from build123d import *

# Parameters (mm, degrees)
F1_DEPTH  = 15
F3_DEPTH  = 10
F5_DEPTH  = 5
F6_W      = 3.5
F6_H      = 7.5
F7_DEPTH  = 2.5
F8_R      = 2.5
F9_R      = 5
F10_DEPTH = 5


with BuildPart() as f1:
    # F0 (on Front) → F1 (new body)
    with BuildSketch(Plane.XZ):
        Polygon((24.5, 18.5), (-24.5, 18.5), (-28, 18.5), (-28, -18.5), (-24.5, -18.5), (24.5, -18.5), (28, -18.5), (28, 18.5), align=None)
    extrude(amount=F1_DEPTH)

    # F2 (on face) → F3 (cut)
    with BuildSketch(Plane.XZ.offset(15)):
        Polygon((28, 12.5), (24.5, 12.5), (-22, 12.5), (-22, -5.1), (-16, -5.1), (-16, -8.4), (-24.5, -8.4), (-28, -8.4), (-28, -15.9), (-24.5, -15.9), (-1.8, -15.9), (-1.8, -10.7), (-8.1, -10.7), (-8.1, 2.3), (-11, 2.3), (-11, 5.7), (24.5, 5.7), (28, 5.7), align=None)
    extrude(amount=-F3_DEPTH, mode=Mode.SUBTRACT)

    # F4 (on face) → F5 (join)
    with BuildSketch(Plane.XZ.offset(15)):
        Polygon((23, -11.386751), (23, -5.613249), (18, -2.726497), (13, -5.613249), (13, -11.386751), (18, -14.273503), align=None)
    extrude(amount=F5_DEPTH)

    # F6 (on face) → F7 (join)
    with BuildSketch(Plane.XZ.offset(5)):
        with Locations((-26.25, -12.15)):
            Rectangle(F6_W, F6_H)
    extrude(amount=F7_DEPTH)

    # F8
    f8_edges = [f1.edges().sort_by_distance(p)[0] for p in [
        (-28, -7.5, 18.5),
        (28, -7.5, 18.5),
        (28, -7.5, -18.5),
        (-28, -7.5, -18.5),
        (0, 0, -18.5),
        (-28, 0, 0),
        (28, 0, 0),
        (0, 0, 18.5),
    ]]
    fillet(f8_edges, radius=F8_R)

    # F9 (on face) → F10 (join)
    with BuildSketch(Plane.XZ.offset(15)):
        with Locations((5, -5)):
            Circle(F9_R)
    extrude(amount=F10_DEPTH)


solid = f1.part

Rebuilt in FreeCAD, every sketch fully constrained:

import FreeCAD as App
import Part
import Sketcher
from FreeCAD import Vector
Q = App.Units.Quantity


def edges_at(feature, points):
    """Names of the edges that pass closest to the given points."""
    edges = feature.Shape.Edges
    near = lambda p: min(range(len(edges)), key=lambda i: edges[i].distToShape(Part.Vertex(*p))[0])
    return sorted({f"Edge{near(p) + 1}" for p in points})

doc = App.newDocument("Part")
body = doc.addObject("PartDesign::Body", "Body")

# Sketch on XZ plane
sketch1 = body.newObject("Sketcher::SketchObject", "Sketch")
sketch1.AttachmentSupport = (doc.getObject("XZ_Plane"), [""])
sketch1.MapMode = "FlatFace"
sketch1.addGeometry([
    Part.LineSegment(Vector(-28, 18, 0), Vector(-28, -18, 0)),
    Part.LineSegment(Vector(-28, -18, 0), Vector(28, -18, 0)),
    Part.LineSegment(Vector(28, -18, 0), Vector(28, 18, 0)),
    Part.LineSegment(Vector(28, 18, 0), Vector(-28, 18, 0)),
], False)
sketch1.addConstraint([
    Sketcher.Constraint("Coincident", 0, 2, 1, 1),
    Sketcher.Constraint("Coincident", 1, 2, 2, 1),
    Sketcher.Constraint("Coincident", 2, 2, 3, 1),
    Sketcher.Constraint("Coincident", 3, 2, 0, 1),
    Sketcher.Constraint("Vertical", 0),
    Sketcher.Constraint("Horizontal", 1),
    Sketcher.Constraint("Vertical", 2),
    Sketcher.Constraint("Horizontal", 3),
    Sketcher.Constraint("Symmetric", 0, 2, 2, 2, -1, 1),
    Sketcher.Constraint("DistanceX", 1, 1, 1, 2, 56.0),
    Sketcher.Constraint("DistanceY", 0, 2, 0, 1, 37.0),
])
pad1 = body.newObject("PartDesign::Pad", "Pad")
pad1.Profile = sketch1
pad1.Length = 15

# Sketch on XZ plane
sketch2 = body.newObject("Sketcher::SketchObject", "Sketch001")
sketch2.AttachmentSupport = (doc.getObject("XZ_Plane"), [""])
sketch2.MapMode = "FlatFace"
sketch2.AttachmentOffset = App.Placement(Vector(0, 0, 15), App.Rotation())
sketch2.addGeometry([
    Part.LineSegment(Vector(28, 12.5, 0), Vector(-22, 12.5, 0)),  # 0
    Part.LineSegment(Vector(-22, 12.5, 0), Vector(-22, -5.1, 0)),  # 1
    Part.LineSegment(Vector(-22, -5.1, 0), Vector(-16, -5.1, 0)),  # 2
    Part.LineSegment(Vector(-16, -5.1, 0), Vector(-16, -8.4, 0)),  # 3
    Part.LineSegment(Vector(-16, -8.4, 0), Vector(-28, -8.4, 0)),  # 4
    Part.LineSegment(Vector(-28, -8.4, 0), Vector(-28, -15.9, 0)),  # 5
    Part.LineSegment(Vector(-28, -15.9, 0), Vector(-1.8, -15.9, 0)),  # 6
    Part.LineSegment(Vector(-1.8, -15.9, 0), Vector(-1.8, -10.7, 0)),  # 7
    Part.LineSegment(Vector(-1.8, -10.7, 0), Vector(-8.1, -10.7, 0)),  # 8
    Part.LineSegment(Vector(-8.1, -10.7, 0), Vector(-8.1, 2.3, 0)),  # 9
    Part.LineSegment(Vector(-8.1, 2.3, 0), Vector(-11, 2.3, 0)),  # 10
    Part.LineSegment(Vector(-11, 2.3, 0), Vector(-11, 5.7, 0)),  # 11
    Part.LineSegment(Vector(-11, 5.7, 0), Vector(28, 5.7, 0)),  # 12
    Part.LineSegment(Vector(28, 5.7, 0), Vector(28, 12.5, 0)),  # 13
], False)
sketch2.addConstraint([
    Sketcher.Constraint("Coincident", 0, 2, 1, 1),
    Sketcher.Constraint("Coincident", 1, 2, 2, 1),
    Sketcher.Constraint("Coincident", 2, 2, 3, 1),
    Sketcher.Constraint("Coincident", 3, 2, 4, 1),
    Sketcher.Constraint("Coincident", 4, 2, 5, 1),
    Sketcher.Constraint("Coincident", 5, 2, 6, 1),
    Sketcher.Constraint("Coincident", 6, 2, 7, 1),
    Sketcher.Constraint("Coincident", 7, 2, 8, 1),
    Sketcher.Constraint("Coincident", 8, 2, 9, 1),
    Sketcher.Constraint("Coincident", 9, 2, 10, 1),
    Sketcher.Constraint("Coincident", 10, 2, 11, 1),
    Sketcher.Constraint("Coincident", 11, 2, 12, 1),
    Sketcher.Constraint("Coincident", 12, 2, 13, 1),
    Sketcher.Constraint("Coincident", 13, 2, 0, 1),
    Sketcher.Constraint("Horizontal", 0),
    Sketcher.Constraint("Vertical", 1),
    Sketcher.Constraint("Horizontal", 2),
    Sketcher.Constraint("Vertical", 3),
    Sketcher.Constraint("Horizontal", 4),
    Sketcher.Constraint("Vertical", 5),
    Sketcher.Constraint("Horizontal", 6),
    Sketcher.Constraint("Vertical", 7),
    Sketcher.Constraint("Horizontal", 8),
    Sketcher.Constraint("Vertical", 9),
    Sketcher.Constraint("Horizontal", 10),
    Sketcher.Constraint("Vertical", 11),
    Sketcher.Constraint("Horizontal", 12),
    Sketcher.Constraint("Vertical", 13),
    Sketcher.Constraint("DistanceX", 0, 2, 0, 1, 50.0),
    Sketcher.Constraint("DistanceX", 2, 1, 2, 2, 6.0),
    Sketcher.Constraint("DistanceX", 4, 2, 4, 1, 12.0),
    Sketcher.Constraint("DistanceX", 12, 1, 12, 2, 39.0),
    Sketcher.Constraint("DistanceY", 9, 1, 9, 2, 13.0),
    Sketcher.Constraint("DistanceX", 6, 1, 6, 2, 26.2),
    Sketcher.Constraint("DistanceX", 8, 2, 8, 1, 6.3),
    Sketcher.Constraint("DistanceY", 1, 2, 1, 1, 17.6),
    Sketcher.Constraint("DistanceY", 3, 2, 3, 1, 3.3),
    Sketcher.Constraint("DistanceY", 5, 2, 5, 1, 7.5),
    Sketcher.Constraint("DistanceY", 7, 1, 7, 2, 5.2),
    Sketcher.Constraint("DistanceY", 11, 1, 11, 2, 3.4),
    Sketcher.Constraint("DistanceX", 0, 2, -1, 1, 22.0),
    Sketcher.Constraint("DistanceY", -1, 1, 0, 2, 12.5),
])
pocket1 = body.newObject("PartDesign::Pocket", "Pocket")
pocket1.Profile = sketch2
pocket1.Length = 10

# Sketch on XZ plane
sketch3 = body.newObject("Sketcher::SketchObject", "Sketch002")
sketch3.AttachmentSupport = (doc.getObject("XZ_Plane"), [""])
sketch3.MapMode = "FlatFace"
sketch3.AttachmentOffset = App.Placement(Vector(0, 0, 15), App.Rotation())
sketch3.addGeometry([
    Part.LineSegment(Vector(23, -11, 0), Vector(23, -6, 0)),  # 0
    Part.LineSegment(Vector(23, -6, 0), Vector(18, -3, 0)),  # 1
    Part.LineSegment(Vector(18, -3, 0), Vector(13, -6, 0)),  # 2
    Part.LineSegment(Vector(13, -6, 0), Vector(13, -11, 0)),  # 3
    Part.LineSegment(Vector(13, -11, 0), Vector(18, -14, 0)),  # 4
    Part.LineSegment(Vector(18, -14, 0), Vector(23, -11, 0)),  # 5
], False)
sketch3.addConstraint([
    Sketcher.Constraint("Coincident", 0, 2, 1, 1),
    Sketcher.Constraint("Coincident", 1, 2, 2, 1),
    Sketcher.Constraint("Coincident", 2, 2, 3, 1),
    Sketcher.Constraint("Coincident", 3, 2, 4, 1),
    Sketcher.Constraint("Coincident", 4, 2, 5, 1),
    Sketcher.Constraint("Coincident", 5, 2, 0, 1),
    Sketcher.Constraint("Vertical", 0),
    Sketcher.Constraint("Vertical", 3),
    Sketcher.Constraint("Parallel", 1, 4),
    Sketcher.Constraint("Parallel", 2, 5),
    Sketcher.Constraint("Horizontal", 0, 2, 2, 2),
    Sketcher.Constraint("Horizontal", 3, 2, 5, 2),
    Sketcher.Constraint("Vertical", 1, 2, 4, 2),
    Sketcher.Constraint("Angle", 1, Q("149.999994 deg")),
    Sketcher.Constraint("DistanceX", -1, 1, 0, 2, 23.0),
    Sketcher.Constraint("DistanceX", -1, 1, 1, 2, 18.0),
    Sketcher.Constraint("DistanceY", 0, 1, 0, 2, 5.773502),
    Sketcher.Constraint("DistanceY", 0, 2, -1, 1, 5.613249),
])
pad2 = body.newObject("PartDesign::Pad", "Pad001")
pad2.Profile = sketch3
pad2.Length = 5

# Sketch on XZ plane
sketch4 = body.newObject("Sketcher::SketchObject", "Sketch003")
sketch4.AttachmentSupport = (doc.getObject("XZ_Plane"), [""])
sketch4.MapMode = "FlatFace"
sketch4.AttachmentOffset = App.Placement(Vector(0, 0, 5), App.Rotation())
sketch4.addGeometry([
    Part.LineSegment(Vector(-28, -8.4, 0), Vector(-28, -15.9, 0)),
    Part.LineSegment(Vector(-28, -15.9, 0), Vector(-24.5, -15.9, 0)),
    Part.LineSegment(Vector(-24.5, -15.9, 0), Vector(-24.5, -8.4, 0)),
    Part.LineSegment(Vector(-24.5, -8.4, 0), Vector(-28, -8.4, 0)),
], False)
sketch4.addConstraint([
    Sketcher.Constraint("Coincident", 0, 2, 1, 1),
    Sketcher.Constraint("Coincident", 1, 2, 2, 1),
    Sketcher.Constraint("Coincident", 2, 2, 3, 1),
    Sketcher.Constraint("Coincident", 3, 2, 0, 1),
    Sketcher.Constraint("Vertical", 0),
    Sketcher.Constraint("Horizontal", 1),
    Sketcher.Constraint("Vertical", 2),
    Sketcher.Constraint("Horizontal", 3),
    Sketcher.Constraint("DistanceX", 1, 1, 1, 2, 3.5),
    Sketcher.Constraint("DistanceY", 0, 2, 0, 1, 7.5),
    Sketcher.Constraint("DistanceX", 0, 2, -1, 1, 28.0),
    Sketcher.Constraint("DistanceY", 0, 2, -1, 1, 15.9),
])
pad3 = body.newObject("PartDesign::Pad", "Pad002")
pad3.Profile = sketch4
pad3.Length = 2.5
doc.recompute()

fillet = body.newObject("PartDesign::Fillet", "Fillet")
fillet.Base = (pad3, edges_at(pad3, [
    (-28, -7.5, 18.5),
    (28, -7.5, 18.5),
    (28, -7.5, -18.5),
    (-28, -7.5, -18.5),
    (0, 0, -18.5),
    (-28, 0, 0),
    (28, 0, 0),
    (0, 0, 18.5),
]))
fillet.Radius = 2.5

# Sketch on XZ plane
sketch5 = body.newObject("Sketcher::SketchObject", "Sketch004")
sketch5.AttachmentSupport = (doc.getObject("XZ_Plane"), [""])
sketch5.MapMode = "FlatFace"
sketch5.AttachmentOffset = App.Placement(Vector(0, 0, 15), App.Rotation())
sketch5.addGeometry(Part.Circle(Vector(5, -5, 0), Vector(0, 0, 1), 5), False)
sketch5.addConstraint([
    Sketcher.Constraint("Diameter", 0, 10.0),
    Sketcher.Constraint("DistanceX", -1, 1, 0, 3, 5.0),
    Sketcher.Constraint("DistanceY", 0, 3, -1, 1, 5.0),
])
pad4 = body.newObject("PartDesign::Pad", "Pad003")
pad4.Profile = sketch5
pad4.Length = 5

doc.recompute()
